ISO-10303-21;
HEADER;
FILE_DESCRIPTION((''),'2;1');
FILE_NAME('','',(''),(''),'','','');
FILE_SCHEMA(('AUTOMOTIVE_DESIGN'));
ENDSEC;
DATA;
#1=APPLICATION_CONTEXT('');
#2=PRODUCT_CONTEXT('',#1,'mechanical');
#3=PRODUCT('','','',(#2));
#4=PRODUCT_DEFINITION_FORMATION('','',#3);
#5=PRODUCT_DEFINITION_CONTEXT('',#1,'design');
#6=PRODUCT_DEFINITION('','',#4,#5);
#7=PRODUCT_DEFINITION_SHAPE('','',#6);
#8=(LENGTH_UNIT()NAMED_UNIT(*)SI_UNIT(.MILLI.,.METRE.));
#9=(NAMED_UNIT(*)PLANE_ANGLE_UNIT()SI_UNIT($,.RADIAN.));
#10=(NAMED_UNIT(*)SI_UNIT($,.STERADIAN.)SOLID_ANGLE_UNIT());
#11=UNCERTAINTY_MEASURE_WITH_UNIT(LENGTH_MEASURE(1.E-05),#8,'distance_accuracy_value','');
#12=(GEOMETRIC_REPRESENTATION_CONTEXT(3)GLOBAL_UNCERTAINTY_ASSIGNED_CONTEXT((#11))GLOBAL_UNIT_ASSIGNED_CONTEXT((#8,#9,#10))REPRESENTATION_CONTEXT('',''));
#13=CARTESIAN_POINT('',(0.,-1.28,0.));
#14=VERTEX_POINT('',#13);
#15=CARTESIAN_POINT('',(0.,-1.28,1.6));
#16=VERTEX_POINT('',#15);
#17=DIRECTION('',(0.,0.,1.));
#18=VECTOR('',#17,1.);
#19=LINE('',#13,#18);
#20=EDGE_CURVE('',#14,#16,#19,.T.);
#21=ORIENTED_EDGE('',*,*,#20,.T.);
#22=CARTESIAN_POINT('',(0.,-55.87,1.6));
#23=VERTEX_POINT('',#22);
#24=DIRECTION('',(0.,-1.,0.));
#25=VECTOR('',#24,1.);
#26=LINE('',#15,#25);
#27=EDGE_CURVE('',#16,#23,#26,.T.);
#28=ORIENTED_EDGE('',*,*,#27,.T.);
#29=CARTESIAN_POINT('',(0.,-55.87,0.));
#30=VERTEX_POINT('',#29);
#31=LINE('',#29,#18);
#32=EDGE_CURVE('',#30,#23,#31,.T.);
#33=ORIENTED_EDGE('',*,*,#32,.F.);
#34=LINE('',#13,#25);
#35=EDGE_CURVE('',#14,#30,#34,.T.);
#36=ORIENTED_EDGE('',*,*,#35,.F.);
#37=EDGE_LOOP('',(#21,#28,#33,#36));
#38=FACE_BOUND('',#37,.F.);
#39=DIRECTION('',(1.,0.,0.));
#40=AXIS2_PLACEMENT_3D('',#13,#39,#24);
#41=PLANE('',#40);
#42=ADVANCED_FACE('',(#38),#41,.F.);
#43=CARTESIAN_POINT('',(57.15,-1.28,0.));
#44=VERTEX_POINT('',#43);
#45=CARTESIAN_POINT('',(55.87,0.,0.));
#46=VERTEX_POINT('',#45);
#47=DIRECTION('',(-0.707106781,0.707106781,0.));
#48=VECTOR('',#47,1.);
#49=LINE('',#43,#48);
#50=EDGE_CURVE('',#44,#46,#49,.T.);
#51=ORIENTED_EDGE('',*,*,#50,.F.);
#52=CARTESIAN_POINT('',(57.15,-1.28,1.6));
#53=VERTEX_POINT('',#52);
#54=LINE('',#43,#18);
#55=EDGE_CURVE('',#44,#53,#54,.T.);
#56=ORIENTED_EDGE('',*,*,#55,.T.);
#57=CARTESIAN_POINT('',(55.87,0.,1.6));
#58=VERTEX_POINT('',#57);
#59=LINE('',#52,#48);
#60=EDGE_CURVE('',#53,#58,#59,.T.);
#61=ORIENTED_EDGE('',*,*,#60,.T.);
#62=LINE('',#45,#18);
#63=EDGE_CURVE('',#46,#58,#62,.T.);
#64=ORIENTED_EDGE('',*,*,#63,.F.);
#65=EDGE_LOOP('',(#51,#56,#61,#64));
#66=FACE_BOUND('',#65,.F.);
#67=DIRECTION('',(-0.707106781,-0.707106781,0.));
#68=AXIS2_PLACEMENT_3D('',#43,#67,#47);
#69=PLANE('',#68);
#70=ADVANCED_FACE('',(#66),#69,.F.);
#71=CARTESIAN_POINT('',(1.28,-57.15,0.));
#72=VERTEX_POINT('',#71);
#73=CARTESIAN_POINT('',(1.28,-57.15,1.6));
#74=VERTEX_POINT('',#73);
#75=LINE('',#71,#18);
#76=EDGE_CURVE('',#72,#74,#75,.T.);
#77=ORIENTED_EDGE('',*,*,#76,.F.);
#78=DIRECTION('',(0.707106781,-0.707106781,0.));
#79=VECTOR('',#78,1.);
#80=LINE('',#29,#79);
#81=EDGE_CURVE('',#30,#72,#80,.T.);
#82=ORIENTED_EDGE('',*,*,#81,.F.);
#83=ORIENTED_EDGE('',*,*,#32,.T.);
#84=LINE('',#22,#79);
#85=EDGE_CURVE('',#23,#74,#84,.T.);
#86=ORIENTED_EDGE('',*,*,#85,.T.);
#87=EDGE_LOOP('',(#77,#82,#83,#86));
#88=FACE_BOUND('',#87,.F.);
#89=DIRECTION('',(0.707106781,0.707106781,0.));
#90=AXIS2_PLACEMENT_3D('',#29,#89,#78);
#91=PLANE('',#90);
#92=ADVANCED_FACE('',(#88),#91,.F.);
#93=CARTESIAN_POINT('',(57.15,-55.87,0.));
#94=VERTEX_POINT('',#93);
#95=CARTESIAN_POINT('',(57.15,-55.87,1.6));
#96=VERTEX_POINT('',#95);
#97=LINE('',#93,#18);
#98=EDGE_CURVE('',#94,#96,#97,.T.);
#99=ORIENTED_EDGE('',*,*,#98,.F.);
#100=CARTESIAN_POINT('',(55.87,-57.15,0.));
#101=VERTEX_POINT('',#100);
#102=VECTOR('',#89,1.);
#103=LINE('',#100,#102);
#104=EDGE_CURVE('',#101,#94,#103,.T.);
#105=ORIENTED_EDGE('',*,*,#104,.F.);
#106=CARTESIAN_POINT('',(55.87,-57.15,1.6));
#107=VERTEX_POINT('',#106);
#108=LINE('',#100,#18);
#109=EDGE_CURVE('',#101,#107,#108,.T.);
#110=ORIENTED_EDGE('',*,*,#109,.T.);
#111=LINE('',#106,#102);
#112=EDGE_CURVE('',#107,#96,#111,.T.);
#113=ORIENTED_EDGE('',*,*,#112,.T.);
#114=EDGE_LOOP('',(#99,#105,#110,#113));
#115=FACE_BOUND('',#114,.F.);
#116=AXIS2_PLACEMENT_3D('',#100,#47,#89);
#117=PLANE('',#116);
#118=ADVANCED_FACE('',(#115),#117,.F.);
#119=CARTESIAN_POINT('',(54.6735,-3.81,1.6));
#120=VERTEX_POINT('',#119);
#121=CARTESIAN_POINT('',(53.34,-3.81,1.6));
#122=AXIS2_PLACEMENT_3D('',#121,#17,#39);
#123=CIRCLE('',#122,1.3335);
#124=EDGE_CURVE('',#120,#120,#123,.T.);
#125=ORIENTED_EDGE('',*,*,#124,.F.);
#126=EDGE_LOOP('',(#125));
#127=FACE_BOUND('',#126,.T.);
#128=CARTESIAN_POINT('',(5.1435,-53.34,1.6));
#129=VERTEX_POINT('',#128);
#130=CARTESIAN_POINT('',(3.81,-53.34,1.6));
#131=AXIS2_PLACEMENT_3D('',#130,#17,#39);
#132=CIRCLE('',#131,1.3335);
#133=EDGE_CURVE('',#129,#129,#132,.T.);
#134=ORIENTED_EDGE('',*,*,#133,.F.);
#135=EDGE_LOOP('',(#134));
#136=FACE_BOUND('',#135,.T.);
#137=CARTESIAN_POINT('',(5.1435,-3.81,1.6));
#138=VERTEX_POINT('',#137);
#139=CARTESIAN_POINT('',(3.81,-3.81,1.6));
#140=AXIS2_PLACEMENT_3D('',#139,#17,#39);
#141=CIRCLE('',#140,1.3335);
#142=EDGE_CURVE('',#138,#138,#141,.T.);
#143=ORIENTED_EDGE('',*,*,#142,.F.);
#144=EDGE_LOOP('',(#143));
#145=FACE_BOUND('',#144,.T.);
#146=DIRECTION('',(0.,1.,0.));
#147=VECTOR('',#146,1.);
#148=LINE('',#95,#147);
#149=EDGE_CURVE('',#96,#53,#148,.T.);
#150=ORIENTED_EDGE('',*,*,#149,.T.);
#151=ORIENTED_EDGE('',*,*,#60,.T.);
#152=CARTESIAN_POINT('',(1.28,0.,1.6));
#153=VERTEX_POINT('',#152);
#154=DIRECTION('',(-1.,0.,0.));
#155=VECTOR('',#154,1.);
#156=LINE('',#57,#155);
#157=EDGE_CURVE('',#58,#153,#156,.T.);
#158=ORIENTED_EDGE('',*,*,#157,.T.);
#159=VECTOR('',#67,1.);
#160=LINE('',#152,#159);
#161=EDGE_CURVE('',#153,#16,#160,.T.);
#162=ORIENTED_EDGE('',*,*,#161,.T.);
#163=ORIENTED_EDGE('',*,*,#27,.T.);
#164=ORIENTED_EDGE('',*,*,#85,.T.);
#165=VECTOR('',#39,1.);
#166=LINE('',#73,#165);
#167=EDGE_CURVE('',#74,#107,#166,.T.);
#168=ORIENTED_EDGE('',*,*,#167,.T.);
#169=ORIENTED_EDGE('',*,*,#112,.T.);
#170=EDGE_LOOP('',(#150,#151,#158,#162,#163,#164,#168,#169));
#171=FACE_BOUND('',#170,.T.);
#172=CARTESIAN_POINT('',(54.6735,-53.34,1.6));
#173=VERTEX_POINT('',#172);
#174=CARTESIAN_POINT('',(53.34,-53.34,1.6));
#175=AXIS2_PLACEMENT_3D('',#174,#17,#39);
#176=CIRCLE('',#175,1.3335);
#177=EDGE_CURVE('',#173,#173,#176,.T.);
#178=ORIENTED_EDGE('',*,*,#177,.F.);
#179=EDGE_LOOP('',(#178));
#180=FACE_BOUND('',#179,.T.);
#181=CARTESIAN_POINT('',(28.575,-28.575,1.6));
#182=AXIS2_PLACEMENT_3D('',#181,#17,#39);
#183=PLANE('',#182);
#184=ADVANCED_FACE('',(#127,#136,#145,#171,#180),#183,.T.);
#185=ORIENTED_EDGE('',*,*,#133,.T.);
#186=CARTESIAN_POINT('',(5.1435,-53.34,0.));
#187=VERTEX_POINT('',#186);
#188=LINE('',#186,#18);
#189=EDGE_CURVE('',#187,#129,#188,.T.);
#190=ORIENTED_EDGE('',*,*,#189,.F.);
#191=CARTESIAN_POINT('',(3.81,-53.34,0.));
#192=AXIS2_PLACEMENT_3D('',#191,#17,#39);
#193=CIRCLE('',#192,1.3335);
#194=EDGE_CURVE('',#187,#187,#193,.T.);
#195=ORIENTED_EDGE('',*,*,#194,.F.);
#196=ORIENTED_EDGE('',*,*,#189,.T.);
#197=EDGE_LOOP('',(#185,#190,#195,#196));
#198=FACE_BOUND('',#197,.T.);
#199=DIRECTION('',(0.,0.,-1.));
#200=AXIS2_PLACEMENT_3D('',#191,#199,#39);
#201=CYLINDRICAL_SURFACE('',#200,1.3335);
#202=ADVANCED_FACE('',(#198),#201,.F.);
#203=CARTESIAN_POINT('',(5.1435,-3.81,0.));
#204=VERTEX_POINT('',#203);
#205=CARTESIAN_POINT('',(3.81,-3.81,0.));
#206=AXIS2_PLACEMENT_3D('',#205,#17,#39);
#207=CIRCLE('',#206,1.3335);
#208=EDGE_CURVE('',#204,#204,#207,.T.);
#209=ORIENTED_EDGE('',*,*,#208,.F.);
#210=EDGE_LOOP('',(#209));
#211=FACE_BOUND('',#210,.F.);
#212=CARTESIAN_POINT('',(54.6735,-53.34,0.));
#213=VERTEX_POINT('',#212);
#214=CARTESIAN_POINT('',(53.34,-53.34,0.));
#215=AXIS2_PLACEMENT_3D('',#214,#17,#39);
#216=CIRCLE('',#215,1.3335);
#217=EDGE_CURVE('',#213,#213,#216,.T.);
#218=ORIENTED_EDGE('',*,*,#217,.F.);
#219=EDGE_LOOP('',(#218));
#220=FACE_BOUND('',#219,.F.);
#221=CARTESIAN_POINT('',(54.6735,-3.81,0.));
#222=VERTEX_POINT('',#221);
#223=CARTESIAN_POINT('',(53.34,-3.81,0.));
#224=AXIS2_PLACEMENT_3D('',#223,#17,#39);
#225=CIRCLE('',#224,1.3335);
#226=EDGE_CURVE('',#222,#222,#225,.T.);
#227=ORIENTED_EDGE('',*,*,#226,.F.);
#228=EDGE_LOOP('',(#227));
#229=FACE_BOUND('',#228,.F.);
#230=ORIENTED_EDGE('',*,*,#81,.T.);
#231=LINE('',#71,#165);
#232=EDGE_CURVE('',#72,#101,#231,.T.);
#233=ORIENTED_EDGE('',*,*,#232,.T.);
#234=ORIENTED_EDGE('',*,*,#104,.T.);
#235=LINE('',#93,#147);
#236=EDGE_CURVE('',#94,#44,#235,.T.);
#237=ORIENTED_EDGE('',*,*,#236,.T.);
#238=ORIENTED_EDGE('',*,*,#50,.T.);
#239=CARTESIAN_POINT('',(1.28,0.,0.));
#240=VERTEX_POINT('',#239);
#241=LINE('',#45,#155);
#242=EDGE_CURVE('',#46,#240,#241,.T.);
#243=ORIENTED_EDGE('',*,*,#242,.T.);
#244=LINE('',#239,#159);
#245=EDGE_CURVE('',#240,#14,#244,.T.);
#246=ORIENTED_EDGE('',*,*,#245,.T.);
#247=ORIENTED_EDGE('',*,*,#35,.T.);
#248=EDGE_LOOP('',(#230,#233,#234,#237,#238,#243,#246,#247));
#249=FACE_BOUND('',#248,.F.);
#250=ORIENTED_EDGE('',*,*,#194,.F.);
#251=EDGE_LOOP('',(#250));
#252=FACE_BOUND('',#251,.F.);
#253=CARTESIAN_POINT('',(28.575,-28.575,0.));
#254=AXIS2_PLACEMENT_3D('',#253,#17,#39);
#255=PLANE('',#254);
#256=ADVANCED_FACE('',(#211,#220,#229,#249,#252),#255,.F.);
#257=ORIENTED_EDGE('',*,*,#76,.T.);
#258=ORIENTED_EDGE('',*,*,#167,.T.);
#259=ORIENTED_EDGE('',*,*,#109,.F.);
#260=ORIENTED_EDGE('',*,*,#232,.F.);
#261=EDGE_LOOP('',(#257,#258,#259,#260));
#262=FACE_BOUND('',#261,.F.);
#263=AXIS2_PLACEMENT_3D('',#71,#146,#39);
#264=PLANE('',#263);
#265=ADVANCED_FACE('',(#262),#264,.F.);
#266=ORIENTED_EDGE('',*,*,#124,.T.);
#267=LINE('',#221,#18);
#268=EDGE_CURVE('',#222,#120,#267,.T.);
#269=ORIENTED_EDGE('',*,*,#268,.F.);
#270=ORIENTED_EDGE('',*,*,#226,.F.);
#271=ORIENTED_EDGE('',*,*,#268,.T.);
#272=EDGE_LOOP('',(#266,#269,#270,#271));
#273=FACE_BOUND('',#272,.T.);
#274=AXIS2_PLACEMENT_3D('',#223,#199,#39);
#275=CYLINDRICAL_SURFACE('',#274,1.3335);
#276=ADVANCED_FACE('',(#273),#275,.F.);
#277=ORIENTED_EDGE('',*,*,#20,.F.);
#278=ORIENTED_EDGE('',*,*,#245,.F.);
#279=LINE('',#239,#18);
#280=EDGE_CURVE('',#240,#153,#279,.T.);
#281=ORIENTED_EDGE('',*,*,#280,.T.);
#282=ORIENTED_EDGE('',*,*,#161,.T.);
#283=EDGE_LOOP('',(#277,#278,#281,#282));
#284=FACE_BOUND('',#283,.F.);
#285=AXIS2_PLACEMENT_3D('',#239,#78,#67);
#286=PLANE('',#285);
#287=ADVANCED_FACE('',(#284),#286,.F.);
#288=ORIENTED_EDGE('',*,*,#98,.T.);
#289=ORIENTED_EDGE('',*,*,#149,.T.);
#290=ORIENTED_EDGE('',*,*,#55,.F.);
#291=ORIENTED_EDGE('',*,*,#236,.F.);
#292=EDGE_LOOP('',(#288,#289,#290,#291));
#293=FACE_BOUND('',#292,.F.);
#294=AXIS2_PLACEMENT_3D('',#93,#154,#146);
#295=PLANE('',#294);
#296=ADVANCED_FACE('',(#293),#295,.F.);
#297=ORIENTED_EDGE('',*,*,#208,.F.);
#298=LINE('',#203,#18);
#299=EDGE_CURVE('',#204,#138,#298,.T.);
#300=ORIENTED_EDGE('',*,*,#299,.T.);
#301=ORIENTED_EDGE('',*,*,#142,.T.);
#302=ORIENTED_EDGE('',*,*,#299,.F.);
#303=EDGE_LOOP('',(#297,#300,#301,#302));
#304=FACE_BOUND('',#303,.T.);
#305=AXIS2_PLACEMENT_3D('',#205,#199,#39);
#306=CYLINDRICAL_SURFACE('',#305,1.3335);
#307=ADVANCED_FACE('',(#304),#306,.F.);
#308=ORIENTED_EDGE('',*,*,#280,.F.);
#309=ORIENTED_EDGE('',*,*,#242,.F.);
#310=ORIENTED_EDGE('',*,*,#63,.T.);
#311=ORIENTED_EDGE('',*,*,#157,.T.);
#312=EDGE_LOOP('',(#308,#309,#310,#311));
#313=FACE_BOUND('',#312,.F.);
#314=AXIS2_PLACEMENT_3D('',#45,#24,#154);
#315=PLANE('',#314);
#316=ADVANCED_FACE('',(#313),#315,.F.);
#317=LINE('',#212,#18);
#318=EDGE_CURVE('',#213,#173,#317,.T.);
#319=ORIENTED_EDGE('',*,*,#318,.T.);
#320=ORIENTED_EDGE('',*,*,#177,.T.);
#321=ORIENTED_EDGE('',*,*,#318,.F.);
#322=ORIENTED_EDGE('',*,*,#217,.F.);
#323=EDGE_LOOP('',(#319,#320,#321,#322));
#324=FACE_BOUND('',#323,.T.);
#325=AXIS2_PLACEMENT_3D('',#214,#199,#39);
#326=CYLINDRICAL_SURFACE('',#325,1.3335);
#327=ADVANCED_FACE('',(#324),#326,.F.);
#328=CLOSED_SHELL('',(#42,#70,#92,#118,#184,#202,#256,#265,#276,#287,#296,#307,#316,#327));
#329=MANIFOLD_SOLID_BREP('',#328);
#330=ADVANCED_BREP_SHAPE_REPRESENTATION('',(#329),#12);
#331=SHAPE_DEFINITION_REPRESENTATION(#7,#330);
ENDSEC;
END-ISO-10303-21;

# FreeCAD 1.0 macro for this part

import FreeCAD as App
import Part
import Sketcher
Q = App.Units.Quantity

doc = App.newDocument("Part")
body = doc.addObject("PartDesign::Body", "Body")

# Sketch on XY plane
sketch1 = body.newObject("Sketcher::SketchObject", "Sketch")
sketch1.AttachmentSupport = (doc.getObject("XY_Plane"), [""])
sketch1.MapMode = "FlatFace"
sketch1.addGeometry(Part.LineSegment(App.Vector(55.87, 0, 0), App.Vector(1.28, 0, 0)), False)
sketch1.addGeometry(Part.LineSegment(App.Vector(1.28, 0, 0), App.Vector(0, -1.28, 0)), False)
sketch1.addGeometry(Part.LineSegment(App.Vector(0, -1.28, 0), App.Vector(0, -55.87, 0)), False)
sketch1.addGeometry(Part.LineSegment(App.Vector(0, -55.87, 0), App.Vector(1.28, -57.15, 0)), False)
sketch1.addGeometry(Part.LineSegment(App.Vector(1.28, -57.15, 0), App.Vector(55.87, -57.15, 0)), False)
sketch1.addGeometry(Part.LineSegment(App.Vector(55.87, -57.15, 0), App.Vector(57.15, -55.87, 0)), False)
sketch1.addGeometry(Part.LineSegment(App.Vector(57.15, -55.87, 0), App.Vector(57.15, -1.28, 0)), False)
sketch1.addGeometry(Part.LineSegment(App.Vector(57.15, -1.28, 0), App.Vector(55.87, 0, 0)), False)
sketch1.addGeometry(Part.Circle(App.Vector(3.81, -53.34, 0), App.Vector(0, 0, 1), 1.3335), False)
sketch1.addGeometry(Part.Circle(App.Vector(53.34, -53.34, 0), App.Vector(0, 0, 1), 1.3335), False)
sketch1.addGeometry(Part.Circle(App.Vector(3.81, -3.81, 0), App.Vector(0, 0, 1), 1.3335), False)
sketch1.addGeometry(Part.Circle(App.Vector(53.34, -3.81, 0), App.Vector(0, 0, 1), 1.3335), False)
sketch1.addConstraint(Sketcher.Constraint("Coincident", 0, 2, 1, 1))
sketch1.addConstraint(Sketcher.Constraint("Coincident", 1, 2, 2, 1))
sketch1.addConstraint(Sketcher.Constraint("Coincident", 2, 2, 3, 1))
sketch1.addConstraint(Sketcher.Constraint("Coincident", 3, 2, 4, 1))
sketch1.addConstraint(Sketcher.Constraint("Coincident", 4, 2, 5, 1))
sketch1.addConstraint(Sketcher.Constraint("Coincident", 5, 2, 6, 1))
sketch1.addConstraint(Sketcher.Constraint("Coincident", 6, 2, 7, 1))
sketch1.addConstraint(Sketcher.Constraint("Coincident", 7, 2, 0, 1))
sketch1.addConstraint(Sketcher.Constraint("Horizontal", 0))
sketch1.addConstraint(Sketcher.Constraint("Vertical", 2))
sketch1.addConstraint(Sketcher.Constraint("Horizontal", 4))
sketch1.addConstraint(Sketcher.Constraint("Vertical", 6))
sketch1.addConstraint(Sketcher.Constraint("Equal", 8, 9))
sketch1.addConstraint(Sketcher.Constraint("Equal", 9, 10))
sketch1.addConstraint(Sketcher.Constraint("Equal", 10, 11))
sketch1.addConstraint(Sketcher.Constraint("PointOnObject", 0, 2, -1))
sketch1.addConstraint(Sketcher.Constraint("PointOnObject", 1, 2, -2))
sketch1.addConstraint(Sketcher.Constraint("Perpendicular", 1, 3))
sketch1.addConstraint(Sketcher.Constraint("Perpendicular", 3, 5))
sketch1.addConstraint(Sketcher.Constraint("Perpendicular", 5, 7))
sketch1.addConstraint(Sketcher.Constraint("Horizontal", 8, 3, 9, 3))
sketch1.addConstraint(Sketcher.Constraint("Horizontal", 10, 3, 11, 3))
sketch1.addConstraint(Sketcher.Constraint("Horizontal", 2, 2, 5, 2))
sketch1.addConstraint(Sketcher.Constraint("Horizontal", 1, 2, 6, 2))
sketch1.addConstraint(Sketcher.Constraint("Vertical", 8, 3, 10, 3))
sketch1.addConstraint(Sketcher.Constraint("Vertical", 9, 3, 11, 3))
sketch1.addConstraint(Sketcher.Constraint("Vertical", 0, 2, 3, 2))
sketch1.addConstraint(Sketcher.Constraint("Vertical", 4, 2, 7, 2))
sketch1.addConstraint(Sketcher.Constraint("Equal", 4, 2))
sketch1.addConstraint(Sketcher.Constraint("Diameter", 8, Q("2.667 mm")))
sketch1.addConstraint(Sketcher.Constraint("DistanceX", 0, 2, 0, 1, Q("54.59 mm")))
sketch1.addConstraint(Sketcher.Constraint("DistanceX", -1, 1, 8, 3, Q("3.81 mm")))
sketch1.addConstraint(Sketcher.Constraint("DistanceY", 8, 3, -1, 1, Q("53.34 mm")))
sketch1.addConstraint(Sketcher.Constraint("DistanceX", -1, 1, 9, 3, Q("53.34 mm")))
sketch1.addConstraint(Sketcher.Constraint("DistanceY", 10, 3, -1, 1, Q("3.81 mm")))
sketch1.addConstraint(Sketcher.Constraint("DistanceX", -1, 1, 0, 2, Q("1.28 mm")))
pad1 = body.newObject("PartDesign::Pad", "Pad")
pad1.Profile = sketch1
pad1.Length = 1.6

doc.recompute()
